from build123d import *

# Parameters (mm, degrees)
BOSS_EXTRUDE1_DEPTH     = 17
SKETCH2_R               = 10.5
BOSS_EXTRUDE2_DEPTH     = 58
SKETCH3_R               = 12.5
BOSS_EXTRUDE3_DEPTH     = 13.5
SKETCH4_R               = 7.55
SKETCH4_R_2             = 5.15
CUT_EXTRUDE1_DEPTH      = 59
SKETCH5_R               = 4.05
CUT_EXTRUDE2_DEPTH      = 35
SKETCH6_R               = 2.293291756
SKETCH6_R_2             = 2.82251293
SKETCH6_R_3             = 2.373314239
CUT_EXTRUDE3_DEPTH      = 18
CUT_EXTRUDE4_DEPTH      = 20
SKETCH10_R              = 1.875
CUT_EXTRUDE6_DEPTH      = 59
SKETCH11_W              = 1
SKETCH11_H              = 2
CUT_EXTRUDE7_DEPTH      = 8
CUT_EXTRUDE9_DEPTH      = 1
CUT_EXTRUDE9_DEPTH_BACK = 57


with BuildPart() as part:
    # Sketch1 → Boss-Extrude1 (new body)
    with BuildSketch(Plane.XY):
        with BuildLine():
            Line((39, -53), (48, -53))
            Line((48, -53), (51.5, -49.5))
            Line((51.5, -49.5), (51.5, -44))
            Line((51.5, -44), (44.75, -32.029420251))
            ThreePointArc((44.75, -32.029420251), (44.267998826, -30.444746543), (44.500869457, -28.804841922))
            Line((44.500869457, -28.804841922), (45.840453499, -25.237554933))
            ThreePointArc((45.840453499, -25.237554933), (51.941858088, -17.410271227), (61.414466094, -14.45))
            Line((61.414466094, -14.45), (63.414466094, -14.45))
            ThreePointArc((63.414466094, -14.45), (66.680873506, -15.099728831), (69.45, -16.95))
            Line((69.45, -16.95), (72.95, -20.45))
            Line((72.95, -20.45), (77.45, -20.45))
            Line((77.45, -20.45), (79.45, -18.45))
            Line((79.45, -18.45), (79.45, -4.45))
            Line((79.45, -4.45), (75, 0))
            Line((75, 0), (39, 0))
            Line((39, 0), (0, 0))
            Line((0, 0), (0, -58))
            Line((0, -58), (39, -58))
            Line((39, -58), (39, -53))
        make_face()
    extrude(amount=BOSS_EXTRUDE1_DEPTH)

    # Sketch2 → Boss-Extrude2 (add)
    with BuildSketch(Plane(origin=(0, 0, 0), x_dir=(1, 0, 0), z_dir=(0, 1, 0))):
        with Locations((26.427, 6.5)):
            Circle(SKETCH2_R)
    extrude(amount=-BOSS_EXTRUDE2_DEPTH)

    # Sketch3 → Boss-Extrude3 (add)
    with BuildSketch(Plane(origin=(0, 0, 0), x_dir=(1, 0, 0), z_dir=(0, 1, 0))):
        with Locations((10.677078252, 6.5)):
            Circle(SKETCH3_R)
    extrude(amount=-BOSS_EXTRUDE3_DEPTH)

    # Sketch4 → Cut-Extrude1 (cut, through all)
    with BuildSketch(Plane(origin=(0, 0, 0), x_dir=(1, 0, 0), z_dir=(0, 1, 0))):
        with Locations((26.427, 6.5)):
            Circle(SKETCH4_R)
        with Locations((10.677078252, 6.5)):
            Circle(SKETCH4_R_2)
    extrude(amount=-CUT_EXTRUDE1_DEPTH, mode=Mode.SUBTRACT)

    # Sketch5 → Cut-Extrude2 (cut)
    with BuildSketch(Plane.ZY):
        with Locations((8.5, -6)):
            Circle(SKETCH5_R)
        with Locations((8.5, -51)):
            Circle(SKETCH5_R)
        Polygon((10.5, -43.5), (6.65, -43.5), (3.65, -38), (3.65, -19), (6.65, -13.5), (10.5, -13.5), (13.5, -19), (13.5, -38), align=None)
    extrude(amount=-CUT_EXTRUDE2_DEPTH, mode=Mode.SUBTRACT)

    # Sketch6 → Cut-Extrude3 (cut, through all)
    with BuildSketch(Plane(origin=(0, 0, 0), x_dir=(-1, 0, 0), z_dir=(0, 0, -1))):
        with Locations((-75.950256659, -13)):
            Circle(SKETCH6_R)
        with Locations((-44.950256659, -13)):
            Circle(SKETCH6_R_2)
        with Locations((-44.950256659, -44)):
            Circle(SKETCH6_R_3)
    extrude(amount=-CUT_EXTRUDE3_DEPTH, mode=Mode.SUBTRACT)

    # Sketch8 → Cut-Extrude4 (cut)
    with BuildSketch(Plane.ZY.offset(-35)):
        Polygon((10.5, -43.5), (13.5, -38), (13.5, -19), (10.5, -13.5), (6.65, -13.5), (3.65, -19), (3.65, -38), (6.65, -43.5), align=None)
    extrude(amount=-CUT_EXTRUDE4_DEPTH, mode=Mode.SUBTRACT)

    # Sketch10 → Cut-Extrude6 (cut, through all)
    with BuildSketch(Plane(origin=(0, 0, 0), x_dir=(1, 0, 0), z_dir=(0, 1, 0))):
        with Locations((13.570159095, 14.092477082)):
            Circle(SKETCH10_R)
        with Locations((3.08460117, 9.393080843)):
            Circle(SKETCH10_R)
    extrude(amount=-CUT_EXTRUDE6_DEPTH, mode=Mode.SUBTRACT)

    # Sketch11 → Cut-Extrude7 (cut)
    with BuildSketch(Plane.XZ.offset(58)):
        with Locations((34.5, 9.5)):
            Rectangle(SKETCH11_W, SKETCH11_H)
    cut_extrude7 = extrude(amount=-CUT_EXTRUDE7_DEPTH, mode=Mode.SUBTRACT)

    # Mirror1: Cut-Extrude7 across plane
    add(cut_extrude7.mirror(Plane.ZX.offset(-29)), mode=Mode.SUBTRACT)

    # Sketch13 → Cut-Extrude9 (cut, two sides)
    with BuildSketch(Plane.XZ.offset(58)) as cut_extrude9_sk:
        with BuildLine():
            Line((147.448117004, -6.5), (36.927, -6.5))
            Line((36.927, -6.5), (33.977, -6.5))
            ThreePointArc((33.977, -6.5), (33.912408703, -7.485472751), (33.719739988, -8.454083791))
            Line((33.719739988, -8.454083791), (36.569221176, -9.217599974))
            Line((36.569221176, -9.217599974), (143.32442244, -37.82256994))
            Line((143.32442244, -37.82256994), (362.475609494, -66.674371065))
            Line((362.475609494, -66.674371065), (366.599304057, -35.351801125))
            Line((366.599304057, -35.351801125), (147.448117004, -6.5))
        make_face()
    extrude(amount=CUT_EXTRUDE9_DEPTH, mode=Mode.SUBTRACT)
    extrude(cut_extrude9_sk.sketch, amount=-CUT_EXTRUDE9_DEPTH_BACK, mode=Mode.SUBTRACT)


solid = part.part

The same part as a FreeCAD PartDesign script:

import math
import FreeCAD as App
import Part
import Sketcher

V = App.Vector
Q = App.Units.Quantity

doc = App.newDocument("Part")
body = doc.addObject("PartDesign::Body", "Body")

sketch1 = doc.addObject("Sketcher::SketchObject", "Sketch")
body.addObject(sketch1)
sketch1.AttachmentSupport = (doc.XY_Plane, [""])
sketch1.MapMode = "FlatFace"
sketch1.addGeometry([
    Part.LineSegment(V(39, -53, 0), V(48, -53, 0)),
    Part.LineSegment(V(48, -53, 0), V(51.5, -49.5, 0)),
    Part.LineSegment(V(51.5, -49.5, 0), V(51.5, -44, 0)),
    Part.LineSegment(V(51.5, -44, 0), V(44.8, -32, 0)),
    Part.ArcOfCircle(Part.Circle(V(48.1, -30.1, 0), V(0, 0, 1), 3.8), math.radians(159), math.radians(209)),
    Part.LineSegment(V(44.5, -28.8, 0), V(45.8, -25.2, 0)),
    Part.ArcOfCircle(Part.Circle(V(61.4, -31.1, 0), V(0, 0, 1), 16.6), math.radians(90), math.radians(159)),
    Part.LineSegment(V(61.4, -14.4, 0), V(63.4, -14.4, 0)),
    Part.ArcOfCircle(Part.Circle(V(63.4, -23, 0), V(0, 0, 1), 8.5), math.radians(45), math.radians(90)),
    Part.LineSegment(V(69.5, -16.9, 0), V(73, -20.4, 0)),
    Part.LineSegment(V(73, -20.4, 0), V(77.5, -20.4, 0)),
    Part.LineSegment(V(77.5, -20.4, 0), V(79.5, -18.4, 0)),
    Part.LineSegment(V(79.5, -18.4, 0), V(79.5, -4.5, 0)),
    Part.LineSegment(V(79.5, -4.5, 0), V(75, 0, 0)),
    Part.LineSegment(V(75, 0, 0), V(0, 0, 0)),
    Part.LineSegment(V(0, 0, 0), V(0, -58, 0)),
    Part.LineSegment(V(0, -58, 0), V(39, -58, 0)),
    Part.LineSegment(V(39, -58, 0), V(39, -53, 0)),
], False)
sketch1.addConstraint([
    Sketcher.Constraint("Coincident", 0, 2, 1, 1),
    Sketcher.Constraint("Coincident", 1, 2, 2, 1),
    Sketcher.Constraint("Coincident", 2, 2, 3, 1),
    Sketcher.Constraint("Tangent", 3, 2, 4, 2),
    Sketcher.Constraint("Tangent", 4, 1, 5, 1),
    Sketcher.Constraint("Tangent", 5, 2, 6, 2),
    Sketcher.Constraint("Tangent", 6, 1, 7, 1),
    Sketcher.Constraint("Tangent", 7, 2, 8, 2),
    Sketcher.Constraint("Tangent", 8, 1, 9, 1),
    Sketcher.Constraint("Coincident", 9, 2, 10, 1),
    Sketcher.Constraint("Coincident", 10, 2, 11, 1),
    Sketcher.Constraint("Coincident", 11, 2, 12, 1),
    Sketcher.Constraint("Coincident", 12, 2, 13, 1),
    Sketcher.Constraint("Coincident", 13, 2, 14, 1),
    Sketcher.Constraint("Coincident", 14, 2, 15, 1),
    Sketcher.Constraint("Coincident", 15, 2, 16, 1),
    Sketcher.Constraint("Coincident", 16, 2, 17, 1),
    Sketcher.Constraint("Coincident", 17, 2, 0, 1),
    Sketcher.Constraint("Horizontal", 0),
    Sketcher.Constraint("Vertical", 2),
    Sketcher.Constraint("Horizontal", 7),
    Sketcher.Constraint("Horizontal", 10),
    Sketcher.Constraint("Vertical", 12),
    Sketcher.Constraint("Horizontal", 14),
    Sketcher.Constraint("Vertical", 15),
    Sketcher.Constraint("Horizontal", 16),
    Sketcher.Constraint("Vertical", 17),
    Sketcher.Constraint("Coincident", 14, 2, -1, 1),
    Sketcher.Constraint("Perpendicular", 1, 9),
    Sketcher.Constraint("Perpendicular", 9, 11),
    Sketcher.Constraint("Perpendicular", 11, 13),
    Sketcher.Constraint("Equal", 1, 9),
    Sketcher.Constraint("DistanceX", 0, 1, 0, 2, Q("9 mm")),
    Sketcher.Constraint("DistanceX", 7, 1, 7, 2, Q("2 mm")),
    Sketcher.Constraint("DistanceX", 14, 2, 14, 1, Q("75 mm")),
    Sketcher.Constraint("DistanceX", 16, 1, 16, 2, Q("39 mm")),
    Sketcher.Constraint("DistanceY", 12, 1, 12, 2, Q("14 mm")),
    Sketcher.Constraint("DistanceY", 15, 2, 15, 1, Q("58 mm")),
    Sketcher.Constraint("DistanceY", 17, 1, 17, 2, Q("5 mm")),
    Sketcher.Constraint("Angle", 1, Q("45 deg")),
    Sketcher.Constraint("DistanceX", 10, 1, 10, 2, Q("4.5 mm")),
    Sketcher.Constraint("DistanceY", 2, 1, 2, 2, Q("5.5 mm")),
    Sketcher.Constraint("DistanceY", 2, 2, -1, 1, Q("44 mm")),
    Sketcher.Constraint("DistanceY", 9, 2, 7, 2, Q("6 mm")),
    Sketcher.Constraint("DistanceX", 10, 2, 11, 2, Q("2 mm")),
    Sketcher.Constraint("DistanceY", 4, 3, 6, 1, Q("15.7 mm")),
    Sketcher.Constraint("DistanceY", 4, 3, -1, 1, Q("30.15 mm")),
    Sketcher.Constraint("DistanceX", -1, 1, 3, 2, Q("44.75 mm")),
    Sketcher.Constraint("Radius", 4, Q("3.82637 mm")),
    Sketcher.Constraint("Radius", 6, Q("16.635893 mm")),
])
pad1 = doc.addObject("PartDesign::Pad", "Pad")
body.addObject(pad1)
pad1.Profile = sketch1
pad1.Length = 17

sketch2 = doc.addObject("Sketcher::SketchObject", "Sketch001")
body.addObject(sketch2)
sketch2.AttachmentSupport = (doc.XZ_Plane, [""])
sketch2.MapMode = "FlatFace"
sketch2.addGeometry(Part.Circle(V(26, -6, 0), V(0, 0, 1), 10), False)
sketch2.addConstraint([
    Sketcher.Constraint("Diameter", 0, Q("21 mm")),
    Sketcher.Constraint("DistanceY", 0, 3, -1, 1, Q("6.5 mm")),
    Sketcher.Constraint("DistanceX", -1, 1, 0, 3, Q("26.427 mm")),
])
pad2 = doc.addObject("PartDesign::Pad", "Pad001")
body.addObject(pad2)
pad2.Profile = sketch2
pad2.Length = 58

sketch3 = doc.addObject("Sketcher::SketchObject", "Sketch002")
body.addObject(sketch3)
sketch3.AttachmentSupport = (doc.XZ_Plane, [""])
sketch3.MapMode = "FlatFace"
sketch3.addGeometry(Part.Circle(V(11, -6, 0), V(0, 0, 1), 12), False)
sketch3.addConstraint([
    Sketcher.Constraint("Diameter", 0, Q("25 mm")),
    Sketcher.Constraint("DistanceY", 0, 3, -1, 1, Q("6.5 mm")),
    Sketcher.Constraint("DistanceX", -1, 1, 0, 3, Q("10.677078 mm")),
])
pad3 = doc.addObject("PartDesign::Pad", "Pad002")
body.addObject(pad3)
pad3.Profile = sketch3
pad3.Length = 13.5

sketch4 = doc.addObject("Sketcher::SketchObject", "Sketch003")
body.addObject(sketch4)
sketch4.AttachmentSupport = (doc.XZ_Plane, [""])
sketch4.MapMode = "FlatFace"
sketch4.addGeometry([
    Part.Circle(V(26, -6, 0), V(0, 0, 1), 8),
    Part.Circle(V(11, -6, 0), V(0, 0, 1), 5),
], False)
sketch4.addConstraint([
    Sketcher.Constraint("Horizontal", 0, 3, 1, 3),
    Sketcher.Constraint("Diameter", 0, Q("15.1 mm")),
    Sketcher.Constraint("Diameter", 1, Q("10.3 mm")),
    Sketcher.Constraint("DistanceY", 0, 3, -1, 1, Q("6.5 mm")),
    Sketcher.Constraint("DistanceX", -1, 1, 0, 3, Q("26.427 mm")),
    Sketcher.Constraint("DistanceX", -1, 1, 1, 3, Q("10.677078 mm")),
])
pocket1 = doc.addObject("PartDesign::Pocket", "Pocket")
body.addObject(pocket1)
pocket1.Profile = sketch4
pocket1.Type = "ThroughAll"
pocket1.Reversed = True

sketch5 = doc.addObject("Sketcher::SketchObject", "Sketch004")
body.addObject(sketch5)
sketch5.AttachmentSupport = (doc.YZ_Plane, [""])
sketch5.MapMode = "FlatFace"
sketch5.addGeometry([
    Part.Circle(V(-6, 8.5, 0), V(0, 0, 1), 4),
    Part.Circle(V(-51, 8.5, 0), V(0, 0, 1), 4),
    Part.LineSegment(V(-43.5, 6.7, 0), V(-43.5, 10.5, 0)),
    Part.LineSegment(V(-43.5, 10.5, 0), V(-38, 13.5, 0)),
    Part.LineSegment(V(-38, 13.5, 0), V(-19, 13.5, 0)),
    Part.LineSegment(V(-19, 13.5, 0), V(-13.5, 10.5, 0)),
    Part.LineSegment(V(-13.5, 10.5, 0), V(-13.5, 6.7, 0)),
    Part.LineSegment(V(-13.5, 6.7, 0), V(-19, 3.6, 0)),
    Part.LineSegment(V(-19, 3.6, 0), V(-38, 3.6, 0)),
    Part.LineSegment(V(-38, 3.6, 0), V(-43.5, 6.7, 0)),
], False)
sketch5.addConstraint([
    Sketcher.Constraint("Coincident", 2, 2, 3, 1),
    Sketcher.Constraint("Coincident", 3, 2, 4, 1),
    Sketcher.Constraint("Coincident", 4, 2, 5, 1),
    Sketcher.Constraint("Coincident", 5, 2, 6, 1),
    Sketcher.Constraint("Coincident", 6, 2, 7, 1),
    Sketcher.Constraint("Coincident", 7, 2, 8, 1),
    Sketcher.Constraint("Coincident", 8, 2, 9, 1),
    Sketcher.Constraint("Coincident", 9, 2, 2, 1),
    Sketcher.Constraint("Vertical", 2),
    Sketcher.Constraint("Horizontal", 4),
    Sketcher.Constraint("Vertical", 6),
    Sketcher.Constraint("Horizontal", 8),
    Sketcher.Constraint("Equal", 0, 1),
    Sketcher.Constraint("Parallel", 3, 7),
    Sketcher.Constraint("Parallel", 5, 9),
    Sketcher.Constraint("Horizontal", 0, 3, 1, 3),
    Sketcher.Constraint("Horizontal", 2, 2, 5, 2),
    Sketcher.Constraint("Horizontal", 6, 2, 9, 2),
    Sketcher.Constraint("Vertical", 4, 2, 7, 2),
    Sketcher.Constraint("Vertical", 3, 2, 8, 2),
    Sketcher.Constraint("Diameter", 0, Q("8.1 mm")),
    Sketcher.Constraint("DistanceX", 4, 1, 4, 2, Q("19 mm")),
    Sketcher.Constraint("DistanceX", 0, 3, -1, 1, Q("6 mm")),
    Sketcher.Constraint("DistanceX", 1, 3, -1, 1, Q("51 mm")),
    Sketcher.Constraint("DistanceX", 3, 2, -1, 1, Q("38 mm")),
    Sketcher.Constraint("DistanceY", 1, 3, 2, 2, Q("2 mm")),
    Sketcher.Constraint("DistanceY", 2, 2, 3, 2, Q("3 mm")),
    Sketcher.Constraint("DistanceX", 2, 2, 5, 2, Q("30 mm")),
    Sketcher.Constraint("DistanceY", 2, 1, 2, 2, Q("3.85 mm")),
    Sketcher.Constraint("DistanceY", -1, 1, 0, 3, Q("8.5 mm")),
])
pocket2 = doc.addObject("PartDesign::Pocket", "Pocket001")
body.addObject(pocket2)
pocket2.Profile = sketch5
pocket2.Length = 35
pocket2.Reversed = True

sketch6 = doc.addObject("Sketcher::SketchObject", "Sketch005")
body.addObject(sketch6)
sketch6.AttachmentSupport = (doc.XY_Plane, [""])
sketch6.MapMode = "FlatFace"
sketch6.addGeometry([
    Part.Circle(V(76, -13, 0), V(0, 0, 1), 2.3),
    Part.Circle(V(45, -13, 0), V(0, 0, 1), 2.8),
    Part.Circle(V(45, -44, 0), V(0, 0, 1), 2.4),
], False)
sketch6.addConstraint([
    Sketcher.Constraint("Horizontal", 0, 3, 1, 3),
    Sketcher.Constraint("Vertical", 1, 3, 2, 3),
    Sketcher.Constraint("DistanceY", 0, 3, -1, 1, Q("13 mm")),
    Sketcher.Constraint("DistanceY", 2, 3, -1, 1, Q("44 mm")),
    Sketcher.Constraint("DistanceX", 1, 3, 0, 3, Q("31 mm")),
    Sketcher.Constraint("Diameter", 2, Q("4.746628 mm")),
    Sketcher.Constraint("Diameter", 0, Q("4.586584 mm")),
    Sketcher.Constraint("Diameter", 1, Q("5.645026 mm")),
    Sketcher.Constraint("DistanceX", -1, 1, 0, 3, Q("75.950257 mm")),
])
pocket3 = doc.addObject("PartDesign::Pocket", "Pocket002")
body.addObject(pocket3)
pocket3.Profile = sketch6
pocket3.Type = "ThroughAll"
pocket3.Reversed = True

sketch7 = doc.addObject("Sketcher::SketchObject", "Sketch006")
body.addObject(sketch7)
sketch7.AttachmentSupport = (doc.YZ_Plane, [""])
sketch7.MapMode = "FlatFace"
sketch7.AttachmentOffset = App.Placement(V(0, 0, 35), App.Rotation())
sketch7.addGeometry([
    Part.LineSegment(V(-43.5, 10.5, 0), V(-38, 13.5, 0)),
    Part.LineSegment(V(-38, 13.5, 0), V(-19, 13.5, 0)),
    Part.LineSegment(V(-19, 13.5, 0), V(-13.5, 10.5, 0)),
    Part.LineSegment(V(-13.5, 10.5, 0), V(-13.5, 6.7, 0)),
    Part.LineSegment(V(-13.5, 6.7, 0), V(-19, 3.6, 0)),
    Part.LineSegment(V(-19, 3.6, 0), V(-38, 3.6, 0)),
    Part.LineSegment(V(-38, 3.6, 0), V(-43.5, 6.7, 0)),
    Part.LineSegment(V(-43.5, 6.7, 0), V(-43.5, 10.5, 0)),
], False)
sketch7.addConstraint([
    Sketcher.Constraint("Coincident", 0, 2, 1, 1),
    Sketcher.Constraint("Coincident", 1, 2, 2, 1),
    Sketcher.Constraint("Coincident", 2, 2, 3, 1),
    Sketcher.Constraint("Coincident", 3, 2, 4, 1),
    Sketcher.Constraint("Coincident", 4, 2, 5, 1),
    Sketcher.Constraint("Coincident", 5, 2, 6, 1),
    Sketcher.Constraint("Coincident", 6, 2, 7, 1),
    Sketcher.Constraint("Coincident", 7, 2, 0, 1),
    Sketcher.Constraint("Horizontal", 1),
    Sketcher.Constraint("Vertical", 3),
    Sketcher.Constraint("Horizontal", 5),
    Sketcher.Constraint("Vertical", 7),
    Sketcher.Constraint("Parallel", 0, 4),
    Sketcher.Constraint("Parallel", 2, 6),
    Sketcher.Constraint("Horizontal", 3, 2, 6, 2),
    Sketcher.Constraint("Horizontal", 2, 2, 7, 2),
    Sketcher.Constraint("Vertical", 1, 2, 4, 2),
    Sketcher.Constraint("Vertical", 0, 2, 5, 2),
    Sketcher.Constraint("DistanceX", 1, 1, 1, 2, Q("19 mm")),
    Sketcher.Constraint("DistanceX", 0, 2, -1, 1, Q("38 mm")),
    Sketcher.Constraint("DistanceY", 2, 2, 1, 2, Q("3 mm")),
    Sketcher.Constraint("DistanceX", 6, 2, 3, 2, Q("30 mm")),
    Sketcher.Constraint("DistanceY", 3, 2, 3, 1, Q("3.85 mm")),
    Sketcher.Constraint("DistanceY", -1, 1, 0, 2, Q("13.5 mm")),
])
pocket4 = doc.addObject("PartDesign::Pocket", "Pocket003")
body.addObject(pocket4)
pocket4.Profile = sketch7
pocket4.Length = 20
pocket4.Reversed = True

sketch8 = doc.addObject("Sketcher::SketchObject", "Sketch007")
body.addObject(sketch8)
sketch8.AttachmentSupport = (doc.XZ_Plane, [""])
sketch8.MapMode = "FlatFace"
sketch8.addGeometry([
    Part.Circle(V(13.6, -14.1, 0), V(0, 0, 1), 1.9),
    Part.Circle(V(3.1, -9.4, 0), V(0, 0, 1), 1.9),
], False)
sketch8.addConstraint([
    Sketcher.Constraint("Equal", 0, 1),
    Sketcher.Constraint("Diameter", 0, Q("3.75 mm")),
    Sketcher.Constraint("DistanceX", -1, 1, 1, 3, Q("3.084601 mm")),
    Sketcher.Constraint("DistanceX", -1, 1, 0, 3, Q("13.570159 mm")),
    Sketcher.Constraint("DistanceY", 1, 3, -1, 1, Q("9.393081 mm")),
    Sketcher.Constraint("DistanceY", 0, 3, -1, 1, Q("14.092477 mm")),
])
pocket5 = doc.addObject("PartDesign::Pocket", "Pocket004")
body.addObject(pocket5)
pocket5.Profile = sketch8
pocket5.Type = "ThroughAll"
pocket5.Reversed = True

sketch9 = doc.addObject("Sketcher::SketchObject", "Sketch008")
body.addObject(sketch9)
sketch9.AttachmentSupport = (doc.XZ_Plane, [""])
sketch9.MapMode = "FlatFace"
sketch9.AttachmentOffset = App.Placement(V(0, 0, 58), App.Rotation())
sketch9.addGeometry([
    Part.LineSegment(V(34, 10.5, 0), V(34, 8.5, 0)),
    Part.LineSegment(V(34, 8.5, 0), V(35, 8.5, 0)),
    Part.LineSegment(V(35, 8.5, 0), V(35, 10.5, 0)),
    Part.LineSegment(V(35, 10.5, 0), V(34, 10.5, 0)),
], False)
sketch9.addConstraint([
    Sketcher.Constraint("Coincident", 0, 2, 1, 1),
    Sketcher.Constraint("Coincident", 1, 2, 2, 1),
    Sketcher.Constraint("Coincident", 2, 2, 3, 1),
    Sketcher.Constraint("Coincident", 3, 2, 0, 1),
    Sketcher.Constraint("Vertical", 0),
    Sketcher.Constraint("Horizontal", 1),
    Sketcher.Constraint("Vertical", 2),
    Sketcher.Constraint("Horizontal", 3),
    Sketcher.Constraint("DistanceX", 1, 1, 1, 2, Q("1 mm")),
    Sketcher.Constraint("DistanceY", 0, 2, 0, 1, Q("2 mm")),
    Sketcher.Constraint("DistanceX", -1, 1, 0, 2, Q("34 mm")),
    Sketcher.Constraint("DistanceY", -1, 1, 0, 2, Q("8.5 mm")),
])
pocket6 = doc.addObject("PartDesign::Pocket", "Pocket005")
body.addObject(pocket6)
pocket6.Profile = sketch9
pocket6.Length = 8
doc.recompute()

datumplane = doc.addObject("PartDesign::Plane", "DatumPlane")
body.addObject(datumplane)
datumplane.AttachmentSupport = (doc.XZ_Plane, [""])
datumplane.MapMode = "FlatFace"
datumplane.AttachmentOffset = App.Placement(V(0, 0, 29), App.Rotation())
mirrored = doc.addObject("PartDesign::Mirrored", "Mirrored")
body.addObject(mirrored)
mirrored.Originals = [pocket6]
mirrored.MirrorPlane = (datumplane, [""])
body.Tip = mirrored

sketch10 = doc.addObject("Sketcher::SketchObject", "Sketch009")
body.addObject(sketch10)
sketch10.AttachmentSupport = (doc.XZ_Plane, [""])
sketch10.MapMode = "FlatFace"
sketch10.AttachmentOffset = App.Placement(V(0, 0, 58), App.Rotation())
sketch10.addGeometry([
    Part.LineSegment(V(147.4, -6.5, 0), V(34, -6.5, 0)),
    Part.ArcOfCircle(Part.Circle(V(26.4, -6.5, 0), V(0, 0, 1), 7.6), math.radians(-15), math.radians(0)),
    Part.LineSegment(V(33.7, -8.5, 0), V(36.6, -9.2, 0)),
    Part.LineSegment(V(36.6, -9.2, 0), V(143.3, -37.8, 0)),
    Part.LineSegment(V(143.3, -37.8, 0), V(362.5, -66.7, 0)),
    Part.LineSegment(V(362.5, -66.7, 0), V(366.6, -35.4, 0)),
    Part.LineSegment(V(366.6, -35.4, 0), V(147.4, -6.5, 0)),
], False)
sketch10.addConstraint([
    Sketcher.Constraint("Coincident", 0, 2, 1, 2),
    Sketcher.Constraint("Coincident", 1, 1, 2, 1),
    Sketcher.Constraint("Coincident", 2, 2, 3, 1),
    Sketcher.Constraint("Coincident", 3, 2, 4, 1),
    Sketcher.Constraint("Coincident", 4, 2, 5, 1),
    Sketcher.Constraint("Coincident", 5, 2, 6, 1),
    Sketcher.Constraint("Coincident", 6, 2, 0, 1),
    Sketcher.Constraint("Horizontal", 0),
    Sketcher.Constraint("Parallel", 2, 3),
    Sketcher.Constraint("Perpendicular", 4, 5),
    Sketcher.Constraint("Perpendicular", 5, 6),
    Sketcher.Constraint("Horizontal", 1, 3, 0, 2),
    Sketcher.Constraint("Equal", 4, 6),
    Sketcher.Constraint("Angle", 2, Q("-15 deg")),
    Sketcher.Constraint("Radius", 1, Q("7.55 mm")),
    Sketcher.Constraint("Angle", 4, Q("-7.5 deg")),
    Sketcher.Constraint("DistanceY", 1, 3, -1, 1, Q("6.5 mm")),
    Sketcher.Constraint("Distance", 2, Q("2.95 mm")),
    Sketcher.Constraint("DistanceX", -1, 1, 1, 3, Q("26.427 mm")),
    Sketcher.Constraint("DistanceY", 2, 2, -1, 1, Q("9.2176 mm")),
    Sketcher.Constraint("DistanceY", 5, 2, -1, 1, Q("35.351801 mm")),
    Sketcher.Constraint("DistanceX", 2, 2, 3, 2, Q("106.755201 mm")),
])
pocket7 = doc.addObject("PartDesign::Pocket", "Pocket006")
body.addObject(pocket7)
pocket7.Profile = sketch10
pocket7.Type = "TwoLengths"
pocket7.Length = 1
pocket7.Length2 = 57
pocket7.Reversed = True

doc.recompute()
